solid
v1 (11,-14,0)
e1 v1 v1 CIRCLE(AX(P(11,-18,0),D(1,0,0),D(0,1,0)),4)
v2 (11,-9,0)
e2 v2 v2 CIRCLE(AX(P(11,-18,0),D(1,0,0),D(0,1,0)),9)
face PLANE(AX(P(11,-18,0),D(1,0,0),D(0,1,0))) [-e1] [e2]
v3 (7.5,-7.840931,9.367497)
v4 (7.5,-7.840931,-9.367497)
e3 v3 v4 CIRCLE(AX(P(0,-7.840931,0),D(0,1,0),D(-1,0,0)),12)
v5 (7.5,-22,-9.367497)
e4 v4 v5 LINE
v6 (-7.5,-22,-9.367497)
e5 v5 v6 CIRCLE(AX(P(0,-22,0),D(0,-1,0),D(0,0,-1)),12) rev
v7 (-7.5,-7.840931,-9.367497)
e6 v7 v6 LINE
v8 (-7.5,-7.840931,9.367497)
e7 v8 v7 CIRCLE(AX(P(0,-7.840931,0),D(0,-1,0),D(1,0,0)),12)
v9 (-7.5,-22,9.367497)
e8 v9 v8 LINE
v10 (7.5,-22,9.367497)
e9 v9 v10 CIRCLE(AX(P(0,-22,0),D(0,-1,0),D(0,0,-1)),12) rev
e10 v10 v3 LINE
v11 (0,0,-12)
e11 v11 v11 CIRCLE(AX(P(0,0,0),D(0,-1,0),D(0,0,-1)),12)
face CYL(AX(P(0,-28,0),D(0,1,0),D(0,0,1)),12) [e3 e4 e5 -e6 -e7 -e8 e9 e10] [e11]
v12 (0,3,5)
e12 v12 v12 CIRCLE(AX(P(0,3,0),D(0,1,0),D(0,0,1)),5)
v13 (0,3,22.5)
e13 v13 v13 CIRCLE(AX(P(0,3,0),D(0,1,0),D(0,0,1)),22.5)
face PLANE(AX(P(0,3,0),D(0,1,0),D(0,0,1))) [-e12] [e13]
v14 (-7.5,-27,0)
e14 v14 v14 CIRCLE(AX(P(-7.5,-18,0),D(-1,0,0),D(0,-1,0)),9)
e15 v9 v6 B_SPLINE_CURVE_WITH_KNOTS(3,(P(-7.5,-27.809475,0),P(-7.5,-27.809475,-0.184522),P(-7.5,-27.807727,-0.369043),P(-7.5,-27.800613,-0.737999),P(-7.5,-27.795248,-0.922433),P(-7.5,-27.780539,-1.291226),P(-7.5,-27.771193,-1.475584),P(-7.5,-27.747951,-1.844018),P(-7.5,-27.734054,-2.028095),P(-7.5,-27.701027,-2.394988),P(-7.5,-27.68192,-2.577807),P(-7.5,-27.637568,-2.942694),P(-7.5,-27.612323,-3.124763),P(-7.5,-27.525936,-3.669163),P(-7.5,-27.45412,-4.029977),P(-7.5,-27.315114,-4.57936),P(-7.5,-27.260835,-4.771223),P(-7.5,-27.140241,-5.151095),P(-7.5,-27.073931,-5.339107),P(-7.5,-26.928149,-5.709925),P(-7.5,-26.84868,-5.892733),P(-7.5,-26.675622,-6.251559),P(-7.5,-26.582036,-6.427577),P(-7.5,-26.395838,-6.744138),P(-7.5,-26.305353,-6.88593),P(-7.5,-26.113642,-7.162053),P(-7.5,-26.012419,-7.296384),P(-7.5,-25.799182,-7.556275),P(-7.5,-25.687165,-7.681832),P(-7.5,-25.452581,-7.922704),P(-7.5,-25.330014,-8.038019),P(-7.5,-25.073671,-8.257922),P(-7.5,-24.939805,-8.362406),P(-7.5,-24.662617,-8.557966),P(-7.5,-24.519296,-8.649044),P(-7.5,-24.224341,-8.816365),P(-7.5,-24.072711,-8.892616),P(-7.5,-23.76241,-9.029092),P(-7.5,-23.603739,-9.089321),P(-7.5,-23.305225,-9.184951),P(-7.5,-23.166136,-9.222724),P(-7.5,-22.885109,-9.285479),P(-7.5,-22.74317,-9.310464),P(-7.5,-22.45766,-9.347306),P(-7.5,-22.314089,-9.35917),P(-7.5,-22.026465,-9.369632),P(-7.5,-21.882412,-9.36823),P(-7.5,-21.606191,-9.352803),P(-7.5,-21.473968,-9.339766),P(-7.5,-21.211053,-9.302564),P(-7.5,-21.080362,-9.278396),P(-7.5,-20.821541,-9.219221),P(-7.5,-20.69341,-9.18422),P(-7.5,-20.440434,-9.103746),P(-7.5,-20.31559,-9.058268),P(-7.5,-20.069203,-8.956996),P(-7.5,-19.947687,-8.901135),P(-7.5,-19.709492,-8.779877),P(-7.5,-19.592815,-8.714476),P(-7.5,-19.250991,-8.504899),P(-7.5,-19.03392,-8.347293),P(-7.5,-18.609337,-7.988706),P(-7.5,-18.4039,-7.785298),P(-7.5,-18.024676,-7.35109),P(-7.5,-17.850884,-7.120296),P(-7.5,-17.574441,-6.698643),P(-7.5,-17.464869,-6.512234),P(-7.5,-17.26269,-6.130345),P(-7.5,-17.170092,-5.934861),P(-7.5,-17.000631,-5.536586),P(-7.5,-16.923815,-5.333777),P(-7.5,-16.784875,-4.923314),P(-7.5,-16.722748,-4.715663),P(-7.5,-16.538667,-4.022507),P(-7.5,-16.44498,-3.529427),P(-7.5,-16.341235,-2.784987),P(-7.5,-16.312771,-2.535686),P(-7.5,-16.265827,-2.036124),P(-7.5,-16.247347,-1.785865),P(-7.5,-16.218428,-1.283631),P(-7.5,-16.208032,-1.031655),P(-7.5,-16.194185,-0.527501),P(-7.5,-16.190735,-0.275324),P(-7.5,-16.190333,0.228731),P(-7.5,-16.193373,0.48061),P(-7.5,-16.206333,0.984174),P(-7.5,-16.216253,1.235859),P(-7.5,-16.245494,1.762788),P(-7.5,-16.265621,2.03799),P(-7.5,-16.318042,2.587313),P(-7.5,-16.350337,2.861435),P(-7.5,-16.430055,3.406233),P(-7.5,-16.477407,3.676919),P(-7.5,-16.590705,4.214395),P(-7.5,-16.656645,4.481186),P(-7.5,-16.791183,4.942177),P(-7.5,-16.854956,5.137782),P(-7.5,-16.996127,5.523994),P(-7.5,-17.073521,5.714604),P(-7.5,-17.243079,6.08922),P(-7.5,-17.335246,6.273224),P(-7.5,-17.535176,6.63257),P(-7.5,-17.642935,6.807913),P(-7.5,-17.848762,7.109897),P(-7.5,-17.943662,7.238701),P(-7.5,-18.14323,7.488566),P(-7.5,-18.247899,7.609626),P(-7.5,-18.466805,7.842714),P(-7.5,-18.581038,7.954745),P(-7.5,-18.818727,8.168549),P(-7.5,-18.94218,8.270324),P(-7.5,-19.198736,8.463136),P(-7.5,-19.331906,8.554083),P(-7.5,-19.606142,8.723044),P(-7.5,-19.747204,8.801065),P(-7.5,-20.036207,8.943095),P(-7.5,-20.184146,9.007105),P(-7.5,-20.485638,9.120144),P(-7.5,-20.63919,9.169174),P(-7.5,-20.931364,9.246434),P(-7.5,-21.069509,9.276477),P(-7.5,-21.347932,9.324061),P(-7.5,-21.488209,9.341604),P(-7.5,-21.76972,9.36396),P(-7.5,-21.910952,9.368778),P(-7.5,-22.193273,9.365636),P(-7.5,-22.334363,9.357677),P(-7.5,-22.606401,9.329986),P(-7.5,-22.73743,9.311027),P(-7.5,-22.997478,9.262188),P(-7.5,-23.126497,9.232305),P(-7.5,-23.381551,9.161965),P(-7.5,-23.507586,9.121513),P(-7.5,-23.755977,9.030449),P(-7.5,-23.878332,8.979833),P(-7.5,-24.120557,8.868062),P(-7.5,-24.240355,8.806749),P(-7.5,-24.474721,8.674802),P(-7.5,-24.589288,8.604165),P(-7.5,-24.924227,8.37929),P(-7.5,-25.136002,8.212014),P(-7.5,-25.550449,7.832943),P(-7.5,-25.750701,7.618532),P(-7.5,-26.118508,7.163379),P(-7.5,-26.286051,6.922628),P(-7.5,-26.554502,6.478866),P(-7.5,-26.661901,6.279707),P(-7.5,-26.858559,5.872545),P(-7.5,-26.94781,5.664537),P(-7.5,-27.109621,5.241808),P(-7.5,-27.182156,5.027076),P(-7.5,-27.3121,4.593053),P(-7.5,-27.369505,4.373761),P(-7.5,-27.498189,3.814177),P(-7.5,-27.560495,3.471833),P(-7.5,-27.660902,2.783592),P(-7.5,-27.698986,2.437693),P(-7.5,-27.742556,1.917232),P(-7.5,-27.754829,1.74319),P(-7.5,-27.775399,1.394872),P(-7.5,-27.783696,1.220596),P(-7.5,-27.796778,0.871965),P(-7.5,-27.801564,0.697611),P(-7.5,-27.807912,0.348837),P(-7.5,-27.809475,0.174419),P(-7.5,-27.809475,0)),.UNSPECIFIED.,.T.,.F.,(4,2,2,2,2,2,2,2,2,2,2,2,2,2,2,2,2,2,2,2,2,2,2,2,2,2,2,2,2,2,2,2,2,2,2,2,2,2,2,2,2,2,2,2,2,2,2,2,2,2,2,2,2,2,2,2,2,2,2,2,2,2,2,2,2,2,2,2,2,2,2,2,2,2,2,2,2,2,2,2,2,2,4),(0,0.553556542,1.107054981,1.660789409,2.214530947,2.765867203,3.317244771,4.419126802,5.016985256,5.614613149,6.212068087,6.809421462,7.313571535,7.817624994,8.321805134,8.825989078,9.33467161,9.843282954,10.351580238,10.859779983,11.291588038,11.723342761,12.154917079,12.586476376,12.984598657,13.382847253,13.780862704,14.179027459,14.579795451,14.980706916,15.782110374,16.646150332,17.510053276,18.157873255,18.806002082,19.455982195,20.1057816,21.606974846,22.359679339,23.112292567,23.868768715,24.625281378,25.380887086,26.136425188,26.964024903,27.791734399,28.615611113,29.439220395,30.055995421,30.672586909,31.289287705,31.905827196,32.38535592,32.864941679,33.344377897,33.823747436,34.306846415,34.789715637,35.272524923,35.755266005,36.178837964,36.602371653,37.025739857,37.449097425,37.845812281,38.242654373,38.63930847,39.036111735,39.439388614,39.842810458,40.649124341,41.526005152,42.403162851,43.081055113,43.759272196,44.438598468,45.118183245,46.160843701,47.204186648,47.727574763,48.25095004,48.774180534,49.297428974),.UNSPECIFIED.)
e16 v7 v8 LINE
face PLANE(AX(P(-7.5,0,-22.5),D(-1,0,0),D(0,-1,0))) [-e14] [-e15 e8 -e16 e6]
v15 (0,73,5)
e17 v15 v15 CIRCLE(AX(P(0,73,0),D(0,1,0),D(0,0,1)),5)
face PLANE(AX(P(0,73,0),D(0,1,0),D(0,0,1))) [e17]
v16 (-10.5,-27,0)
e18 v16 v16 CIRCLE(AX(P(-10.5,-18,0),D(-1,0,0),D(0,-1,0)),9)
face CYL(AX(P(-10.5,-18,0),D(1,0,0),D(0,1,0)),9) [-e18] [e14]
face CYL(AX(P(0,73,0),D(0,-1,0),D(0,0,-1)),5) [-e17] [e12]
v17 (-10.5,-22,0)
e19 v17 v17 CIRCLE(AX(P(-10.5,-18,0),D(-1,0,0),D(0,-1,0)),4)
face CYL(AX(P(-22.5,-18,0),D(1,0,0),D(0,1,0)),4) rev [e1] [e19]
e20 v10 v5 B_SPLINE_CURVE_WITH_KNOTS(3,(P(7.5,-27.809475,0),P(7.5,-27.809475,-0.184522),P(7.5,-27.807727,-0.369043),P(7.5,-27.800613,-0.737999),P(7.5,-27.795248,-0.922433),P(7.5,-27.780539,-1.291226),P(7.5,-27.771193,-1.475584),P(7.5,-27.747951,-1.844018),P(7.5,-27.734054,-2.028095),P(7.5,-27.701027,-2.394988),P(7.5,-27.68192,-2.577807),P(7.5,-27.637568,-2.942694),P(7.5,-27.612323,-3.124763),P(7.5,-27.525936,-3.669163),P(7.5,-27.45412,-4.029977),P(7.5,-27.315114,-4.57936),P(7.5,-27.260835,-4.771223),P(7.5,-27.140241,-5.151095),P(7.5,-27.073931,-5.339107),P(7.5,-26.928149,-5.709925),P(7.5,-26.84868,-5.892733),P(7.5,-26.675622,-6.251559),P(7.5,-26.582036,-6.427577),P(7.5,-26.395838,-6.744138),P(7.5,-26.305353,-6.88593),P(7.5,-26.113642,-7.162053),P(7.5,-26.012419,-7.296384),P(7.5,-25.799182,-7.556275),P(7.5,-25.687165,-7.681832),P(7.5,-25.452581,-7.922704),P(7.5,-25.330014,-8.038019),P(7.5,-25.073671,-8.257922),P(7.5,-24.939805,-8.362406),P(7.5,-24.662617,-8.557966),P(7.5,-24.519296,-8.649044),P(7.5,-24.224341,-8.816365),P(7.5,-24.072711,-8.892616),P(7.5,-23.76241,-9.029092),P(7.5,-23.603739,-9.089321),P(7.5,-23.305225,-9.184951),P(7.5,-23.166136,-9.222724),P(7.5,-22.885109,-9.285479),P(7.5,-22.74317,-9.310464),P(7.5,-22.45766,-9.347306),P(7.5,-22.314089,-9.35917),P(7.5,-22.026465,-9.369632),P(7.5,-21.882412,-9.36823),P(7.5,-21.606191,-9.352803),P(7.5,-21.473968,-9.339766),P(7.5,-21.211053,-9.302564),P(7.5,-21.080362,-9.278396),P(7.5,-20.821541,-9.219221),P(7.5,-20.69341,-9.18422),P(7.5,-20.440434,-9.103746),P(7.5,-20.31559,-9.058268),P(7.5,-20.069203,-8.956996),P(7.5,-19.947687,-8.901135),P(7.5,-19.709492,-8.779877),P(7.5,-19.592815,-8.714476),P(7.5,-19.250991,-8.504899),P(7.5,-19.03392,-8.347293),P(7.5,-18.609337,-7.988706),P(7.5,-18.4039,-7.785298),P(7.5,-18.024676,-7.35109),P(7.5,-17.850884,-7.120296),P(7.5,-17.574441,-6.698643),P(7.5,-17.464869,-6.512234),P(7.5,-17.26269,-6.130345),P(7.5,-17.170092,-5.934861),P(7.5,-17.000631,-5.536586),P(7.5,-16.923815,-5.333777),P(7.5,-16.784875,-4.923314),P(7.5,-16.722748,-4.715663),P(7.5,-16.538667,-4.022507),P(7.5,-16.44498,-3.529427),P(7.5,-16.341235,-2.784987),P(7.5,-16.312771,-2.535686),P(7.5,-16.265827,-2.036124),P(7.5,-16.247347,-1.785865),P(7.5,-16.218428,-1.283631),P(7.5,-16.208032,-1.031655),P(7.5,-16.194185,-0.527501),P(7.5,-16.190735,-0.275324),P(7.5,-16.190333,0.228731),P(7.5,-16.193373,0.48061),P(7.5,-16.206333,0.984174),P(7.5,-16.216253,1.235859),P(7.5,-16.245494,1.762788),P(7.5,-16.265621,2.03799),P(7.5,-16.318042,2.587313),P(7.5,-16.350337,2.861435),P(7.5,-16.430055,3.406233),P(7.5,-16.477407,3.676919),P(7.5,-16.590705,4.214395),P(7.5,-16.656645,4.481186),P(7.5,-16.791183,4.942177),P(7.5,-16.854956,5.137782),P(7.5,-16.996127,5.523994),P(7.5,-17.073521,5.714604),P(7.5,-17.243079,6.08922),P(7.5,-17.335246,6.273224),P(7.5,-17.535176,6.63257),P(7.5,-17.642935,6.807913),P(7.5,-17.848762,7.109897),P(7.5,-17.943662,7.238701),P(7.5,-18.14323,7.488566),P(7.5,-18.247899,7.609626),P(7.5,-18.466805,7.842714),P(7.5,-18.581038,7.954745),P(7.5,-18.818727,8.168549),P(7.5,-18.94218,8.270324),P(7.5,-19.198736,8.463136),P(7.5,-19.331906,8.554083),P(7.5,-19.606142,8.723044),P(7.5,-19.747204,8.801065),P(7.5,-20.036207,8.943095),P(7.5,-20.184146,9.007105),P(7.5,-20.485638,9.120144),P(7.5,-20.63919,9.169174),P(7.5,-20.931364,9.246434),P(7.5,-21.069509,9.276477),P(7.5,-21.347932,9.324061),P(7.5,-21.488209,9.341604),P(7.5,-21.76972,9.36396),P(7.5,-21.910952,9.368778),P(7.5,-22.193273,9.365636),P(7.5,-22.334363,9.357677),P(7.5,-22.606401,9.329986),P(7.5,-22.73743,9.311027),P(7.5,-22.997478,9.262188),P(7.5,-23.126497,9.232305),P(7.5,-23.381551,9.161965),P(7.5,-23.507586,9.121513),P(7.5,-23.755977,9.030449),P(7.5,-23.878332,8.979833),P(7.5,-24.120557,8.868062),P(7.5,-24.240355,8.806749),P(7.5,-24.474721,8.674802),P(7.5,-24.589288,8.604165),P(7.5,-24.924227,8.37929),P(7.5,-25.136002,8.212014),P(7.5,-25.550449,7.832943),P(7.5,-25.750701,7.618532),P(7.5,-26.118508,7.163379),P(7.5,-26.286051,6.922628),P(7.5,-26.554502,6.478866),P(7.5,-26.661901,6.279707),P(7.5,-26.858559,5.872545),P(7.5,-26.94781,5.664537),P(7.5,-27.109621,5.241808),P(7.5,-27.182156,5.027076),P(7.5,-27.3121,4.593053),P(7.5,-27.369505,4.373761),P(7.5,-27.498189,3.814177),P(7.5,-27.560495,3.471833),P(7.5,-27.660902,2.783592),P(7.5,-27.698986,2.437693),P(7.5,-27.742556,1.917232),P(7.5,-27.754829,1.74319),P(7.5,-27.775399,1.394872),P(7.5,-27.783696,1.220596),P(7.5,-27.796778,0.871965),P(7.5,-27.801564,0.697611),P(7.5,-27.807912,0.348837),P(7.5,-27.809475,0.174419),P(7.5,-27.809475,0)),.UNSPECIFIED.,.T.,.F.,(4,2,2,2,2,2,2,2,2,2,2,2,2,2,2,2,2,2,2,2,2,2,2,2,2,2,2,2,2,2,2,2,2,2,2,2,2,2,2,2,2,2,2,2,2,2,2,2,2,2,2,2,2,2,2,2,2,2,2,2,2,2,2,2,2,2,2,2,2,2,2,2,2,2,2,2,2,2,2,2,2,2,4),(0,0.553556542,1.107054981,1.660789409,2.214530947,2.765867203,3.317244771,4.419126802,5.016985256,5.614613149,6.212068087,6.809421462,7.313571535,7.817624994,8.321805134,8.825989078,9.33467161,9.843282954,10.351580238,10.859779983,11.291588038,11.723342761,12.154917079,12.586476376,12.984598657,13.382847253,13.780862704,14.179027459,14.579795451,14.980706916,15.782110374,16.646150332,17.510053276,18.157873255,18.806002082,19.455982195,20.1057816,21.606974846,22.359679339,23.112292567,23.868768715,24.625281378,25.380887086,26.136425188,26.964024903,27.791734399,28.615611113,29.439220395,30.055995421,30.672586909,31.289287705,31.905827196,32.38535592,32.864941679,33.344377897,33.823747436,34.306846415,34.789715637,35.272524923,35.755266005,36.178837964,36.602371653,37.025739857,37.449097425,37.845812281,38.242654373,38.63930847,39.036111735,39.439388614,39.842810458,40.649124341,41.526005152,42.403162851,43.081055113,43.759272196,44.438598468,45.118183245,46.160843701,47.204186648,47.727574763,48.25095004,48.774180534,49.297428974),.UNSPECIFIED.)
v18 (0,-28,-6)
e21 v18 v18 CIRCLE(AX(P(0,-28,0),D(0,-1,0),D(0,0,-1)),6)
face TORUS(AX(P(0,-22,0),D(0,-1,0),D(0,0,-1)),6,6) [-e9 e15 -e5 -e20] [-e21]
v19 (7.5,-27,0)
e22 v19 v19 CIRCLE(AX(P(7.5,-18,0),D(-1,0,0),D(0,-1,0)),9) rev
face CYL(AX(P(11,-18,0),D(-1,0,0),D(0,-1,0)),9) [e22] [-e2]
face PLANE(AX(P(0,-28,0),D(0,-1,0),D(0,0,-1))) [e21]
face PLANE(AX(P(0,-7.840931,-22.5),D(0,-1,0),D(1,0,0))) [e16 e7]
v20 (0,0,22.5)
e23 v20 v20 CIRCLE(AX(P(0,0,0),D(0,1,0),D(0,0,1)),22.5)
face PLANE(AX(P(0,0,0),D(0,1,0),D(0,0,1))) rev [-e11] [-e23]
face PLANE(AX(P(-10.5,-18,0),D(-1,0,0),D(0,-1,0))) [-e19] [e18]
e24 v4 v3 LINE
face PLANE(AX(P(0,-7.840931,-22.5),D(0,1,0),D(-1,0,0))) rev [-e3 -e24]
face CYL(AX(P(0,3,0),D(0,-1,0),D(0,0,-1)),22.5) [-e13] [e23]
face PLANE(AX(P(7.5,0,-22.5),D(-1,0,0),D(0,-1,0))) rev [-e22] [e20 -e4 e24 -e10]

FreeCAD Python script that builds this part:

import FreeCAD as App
import Part
import Sketcher
from FreeCAD import Vector


def edges_at(feature, points):
    """Names of the edges that pass closest to the given points."""
    edges = feature.Shape.Edges
    near = lambda p: min(range(len(edges)), key=lambda i: edges[i].distToShape(Part.Vertex(*p))[0])
    return sorted({f"Edge{near(p) + 1}" for p in points})

doc = App.newDocument("Part")
body = doc.addObject("PartDesign::Body", "Body")

# Sketch on XZ plane
sketch1 = doc.addObject("Sketcher::SketchObject", "Sketch")
body.addObject(sketch1)
sketch1.AttachmentSupport = (doc.XZ_Plane, [""])
sketch1.MapMode = "FlatFace"
sketch1.addGeometry(Part.Circle(Vector(0, 0, 0), Vector(0, 0, 1), 22), False)
sketch1.addConstraint(Sketcher.Constraint("Coincident", 0, 3, -1, 1))
sketch1.addConstraint(Sketcher.Constraint("Diameter", 0, 45.0))
pad1 = doc.addObject("PartDesign::Pad", "Pad")
body.addObject(pad1)
pad1.Profile = sketch1
pad1.Length = 3
pad1.Reversed = True

# Sketch on XZ plane
sketch2 = doc.addObject("Sketcher::SketchObject", "Sketch001")
body.addObject(sketch2)
sketch2.AttachmentSupport = (doc.XZ_Plane, [""])
sketch2.MapMode = "FlatFace"
sketch2.AttachmentOffset = App.Placement(Vector(0, 0, -3), App.Rotation())
sketch2.addGeometry(Part.Circle(Vector(0, 0, 0), Vector(0, 0, 1), 5), False)
sketch2.addConstraint(Sketcher.Constraint("Coincident", 0, 3, -1, 1))
sketch2.addConstraint(Sketcher.Constraint("Diameter", 0, 10.0))
pad2 = doc.addObject("PartDesign::Pad", "Pad001")
body.addObject(pad2)
pad2.Profile = sketch2
pad2.Length = 70
pad2.Reversed = True

# Sketch on XZ plane
sketch3 = doc.addObject("Sketcher::SketchObject", "Sketch002")
body.addObject(sketch3)
sketch3.AttachmentSupport = (doc.XZ_Plane, [""])
sketch3.MapMode = "FlatFace"
sketch3.addGeometry(Part.Circle(Vector(0, 0, 0), Vector(0, 0, 1), 12), False)
sketch3.addConstraint(Sketcher.Constraint("Coincident", 0, 3, -1, 1))
sketch3.addConstraint(Sketcher.Constraint("Diameter", 0, 24.0))
pad3 = doc.addObject("PartDesign::Pad", "Pad002")
body.addObject(pad3)
pad3.Profile = sketch3
pad3.Length = 28
doc.recompute()

fillet = doc.addObject("PartDesign::Fillet", "Fillet")
body.addObject(fillet)
fillet.Base = (pad3, edges_at(pad3, [(0, -28, 12)]))
fillet.Radius = 6

# Sketch on XY plane
sketch4 = doc.addObject("Sketcher::SketchObject", "Sketch003")
body.addObject(sketch4)
sketch4.AttachmentSupport = (doc.XY_Plane, [""])
sketch4.MapMode = "FlatFace"
sketch4.addGeometry(Part.LineSegment(Vector(-23, -8, 0), Vector(-23, -28, 0)), False)
sketch4.addGeometry(Part.LineSegment(Vector(-23, -28, 0), Vector(-8, -28, 0)), False)
sketch4.addGeometry(Part.LineSegment(Vector(-8, -28, 0), Vector(-8, -8, 0)), False)
sketch4.addGeometry(Part.LineSegment(Vector(-8, -8, 0), Vector(-23, -8, 0)), False)
sketch4.addGeometry(Part.LineSegment(Vector(8, -8, 0), Vector(8, -28, 0)), False)
sketch4.addGeometry(Part.LineSegment(Vector(8, -28, 0), Vector(23, -28, 0)), False)
sketch4.addGeometry(Part.LineSegment(Vector(23, -28, 0), Vector(23, -8, 0)), False)
sketch4.addGeometry(Part.LineSegment(Vector(23, -8, 0), Vector(8, -8, 0)), False)
sketch4.addConstraint(Sketcher.Constraint("Coincident", 0, 2, 1, 1))
sketch4.addConstraint(Sketcher.Constraint("Coincident", 1, 2, 2, 1))
sketch4.addConstraint(Sketcher.Constraint("Coincident", 2, 2, 3, 1))
sketch4.addConstraint(Sketcher.Constraint("Coincident", 3, 2, 0, 1))
sketch4.addConstraint(Sketcher.Constraint("Coincident", 4, 2, 5, 1))
sketch4.addConstraint(Sketcher.Constraint("Coincident", 5, 2, 6, 1))
sketch4.addConstraint(Sketcher.Constraint("Coincident", 6, 2, 7, 1))
sketch4.addConstraint(Sketcher.Constraint("Coincident", 7, 2, 4, 1))
sketch4.addConstraint(Sketcher.Constraint("Vertical", 0))
sketch4.addConstraint(Sketcher.Constraint("Horizontal", 1))
sketch4.addConstraint(Sketcher.Constraint("Vertical", 2))
sketch4.addConstraint(Sketcher.Constraint("Horizontal", 3))
sketch4.addConstraint(Sketcher.Constraint("Vertical", 4))
sketch4.addConstraint(Sketcher.Constraint("Horizontal", 5))
sketch4.addConstraint(Sketcher.Constraint("Vertical", 6))
sketch4.addConstraint(Sketcher.Constraint("Horizontal", 7))
sketch4.addConstraint(Sketcher.Constraint("Symmetric", 1, 2, 4, 2, -2))
sketch4.addConstraint(Sketcher.Constraint("Symmetric", 3, 2, 6, 2, -2))
sketch4.addConstraint(Sketcher.Constraint("DistanceY", 0, 2, 0, 1, 20.0))
sketch4.addConstraint(Sketcher.Constraint("DistanceX", 1, 2, 4, 2, 15.0))
sketch4.addConstraint(Sketcher.Constraint("DistanceX", 1, 1, 1, 2, 15.997748))
sketch4.addConstraint(Sketcher.Constraint("DistanceY", 0, 2, -1, 1, 27.840931))
pocket1 = doc.addObject("PartDesign::Pocket", "Pocket")
body.addObject(pocket1)
pocket1.Profile = sketch4
pocket1.Type = "ThroughAll"
pocket1.Midplane = True

# Sketch on YZ plane
sketch5 = doc.addObject("Sketcher::SketchObject", "Sketch004")
body.addObject(sketch5)
sketch5.AttachmentSupport = (doc.YZ_Plane, [""])
sketch5.MapMode = "FlatFace"
sketch5.AttachmentOffset = App.Placement(Vector(0, 0, 7.5), App.Rotation())
sketch5.addGeometry(Part.Circle(Vector(-18, 0, 0), Vector(0, 0, 1), 4), False)
sketch5.addConstraint(Sketcher.Constraint("PointOnObject", 0, 3, -1))
sketch5.addConstraint(Sketcher.Constraint("Diameter", 0, 8.0))
sketch5.addConstraint(Sketcher.Constraint("DistanceX", 0, 3, -1, 1, 18.0))
pocket2 = doc.addObject("PartDesign::Pocket", "Pocket001")
body.addObject(pocket2)
pocket2.Profile = sketch5
pocket2.Type = "ThroughAll"

# Sketch on YZ plane
sketch6 = doc.addObject("Sketcher::SketchObject", "Sketch005")
body.addObject(sketch6)
sketch6.AttachmentSupport = (doc.YZ_Plane, [""])
sketch6.MapMode = "FlatFace"
sketch6.AttachmentOffset = App.Placement(Vector(0, 0, 7.5), App.Rotation())
sketch6.addGeometry(Part.Circle(Vector(-18, 0, 0), Vector(0, 0, 1), 9), False)
sketch6.addGeometry(Part.Circle(Vector(-18, 0, 0), Vector(0, 0, 1), 4), False)
sketch6.addConstraint(Sketcher.Constraint("Coincident", 1, 3, 0, 3))
sketch6.addConstraint(Sketcher.Constraint("PointOnObject", 0, 3, -1))
sketch6.addConstraint(Sketcher.Constraint("Diameter", 0, 18.0))
sketch6.addConstraint(Sketcher.Constraint("Diameter", 1, 8.0))
sketch6.addConstraint(Sketcher.Constraint("DistanceX", 0, 3, -1, 1, 18.0))
pad4 = doc.addObject("PartDesign::Pad", "Pad003")
body.addObject(pad4)
pad4.Profile = sketch6
pad4.Length = 7
pad4.Midplane = True

# Sketch on YZ plane
sketch7 = doc.addObject("Sketcher::SketchObject", "Sketch006")
body.addObject(sketch7)
sketch7.AttachmentSupport = (doc.YZ_Plane, [""])
sketch7.MapMode = "FlatFace"
sketch7.AttachmentOffset = App.Placement(Vector(0, 0, -7.5), App.Rotation())
sketch7.addGeometry(Part.Circle(Vector(-18, 0, 0), Vector(0, 0, 1), 9), False)
sketch7.addGeometry(Part.Circle(Vector(-18, 0, 0), Vector(0, 0, 1), 4), False)
sketch7.addConstraint(Sketcher.Constraint("Coincident", 1, 3, 0, 3))
sketch7.addConstraint(Sketcher.Constraint("PointOnObject", 0, 3, -1))
sketch7.addConstraint(Sketcher.Constraint("Diameter", 0, 18.0))
sketch7.addConstraint(Sketcher.Constraint("Diameter", 1, 8.0))
sketch7.addConstraint(Sketcher.Constraint("DistanceX", 0, 3, -1, 1, 18.0))
pad5 = doc.addObject("PartDesign::Pad", "Pad004")
body.addObject(pad5)
pad5.Profile = sketch7
pad5.Length = 3
pad5.Reversed = True

doc.recompute()
